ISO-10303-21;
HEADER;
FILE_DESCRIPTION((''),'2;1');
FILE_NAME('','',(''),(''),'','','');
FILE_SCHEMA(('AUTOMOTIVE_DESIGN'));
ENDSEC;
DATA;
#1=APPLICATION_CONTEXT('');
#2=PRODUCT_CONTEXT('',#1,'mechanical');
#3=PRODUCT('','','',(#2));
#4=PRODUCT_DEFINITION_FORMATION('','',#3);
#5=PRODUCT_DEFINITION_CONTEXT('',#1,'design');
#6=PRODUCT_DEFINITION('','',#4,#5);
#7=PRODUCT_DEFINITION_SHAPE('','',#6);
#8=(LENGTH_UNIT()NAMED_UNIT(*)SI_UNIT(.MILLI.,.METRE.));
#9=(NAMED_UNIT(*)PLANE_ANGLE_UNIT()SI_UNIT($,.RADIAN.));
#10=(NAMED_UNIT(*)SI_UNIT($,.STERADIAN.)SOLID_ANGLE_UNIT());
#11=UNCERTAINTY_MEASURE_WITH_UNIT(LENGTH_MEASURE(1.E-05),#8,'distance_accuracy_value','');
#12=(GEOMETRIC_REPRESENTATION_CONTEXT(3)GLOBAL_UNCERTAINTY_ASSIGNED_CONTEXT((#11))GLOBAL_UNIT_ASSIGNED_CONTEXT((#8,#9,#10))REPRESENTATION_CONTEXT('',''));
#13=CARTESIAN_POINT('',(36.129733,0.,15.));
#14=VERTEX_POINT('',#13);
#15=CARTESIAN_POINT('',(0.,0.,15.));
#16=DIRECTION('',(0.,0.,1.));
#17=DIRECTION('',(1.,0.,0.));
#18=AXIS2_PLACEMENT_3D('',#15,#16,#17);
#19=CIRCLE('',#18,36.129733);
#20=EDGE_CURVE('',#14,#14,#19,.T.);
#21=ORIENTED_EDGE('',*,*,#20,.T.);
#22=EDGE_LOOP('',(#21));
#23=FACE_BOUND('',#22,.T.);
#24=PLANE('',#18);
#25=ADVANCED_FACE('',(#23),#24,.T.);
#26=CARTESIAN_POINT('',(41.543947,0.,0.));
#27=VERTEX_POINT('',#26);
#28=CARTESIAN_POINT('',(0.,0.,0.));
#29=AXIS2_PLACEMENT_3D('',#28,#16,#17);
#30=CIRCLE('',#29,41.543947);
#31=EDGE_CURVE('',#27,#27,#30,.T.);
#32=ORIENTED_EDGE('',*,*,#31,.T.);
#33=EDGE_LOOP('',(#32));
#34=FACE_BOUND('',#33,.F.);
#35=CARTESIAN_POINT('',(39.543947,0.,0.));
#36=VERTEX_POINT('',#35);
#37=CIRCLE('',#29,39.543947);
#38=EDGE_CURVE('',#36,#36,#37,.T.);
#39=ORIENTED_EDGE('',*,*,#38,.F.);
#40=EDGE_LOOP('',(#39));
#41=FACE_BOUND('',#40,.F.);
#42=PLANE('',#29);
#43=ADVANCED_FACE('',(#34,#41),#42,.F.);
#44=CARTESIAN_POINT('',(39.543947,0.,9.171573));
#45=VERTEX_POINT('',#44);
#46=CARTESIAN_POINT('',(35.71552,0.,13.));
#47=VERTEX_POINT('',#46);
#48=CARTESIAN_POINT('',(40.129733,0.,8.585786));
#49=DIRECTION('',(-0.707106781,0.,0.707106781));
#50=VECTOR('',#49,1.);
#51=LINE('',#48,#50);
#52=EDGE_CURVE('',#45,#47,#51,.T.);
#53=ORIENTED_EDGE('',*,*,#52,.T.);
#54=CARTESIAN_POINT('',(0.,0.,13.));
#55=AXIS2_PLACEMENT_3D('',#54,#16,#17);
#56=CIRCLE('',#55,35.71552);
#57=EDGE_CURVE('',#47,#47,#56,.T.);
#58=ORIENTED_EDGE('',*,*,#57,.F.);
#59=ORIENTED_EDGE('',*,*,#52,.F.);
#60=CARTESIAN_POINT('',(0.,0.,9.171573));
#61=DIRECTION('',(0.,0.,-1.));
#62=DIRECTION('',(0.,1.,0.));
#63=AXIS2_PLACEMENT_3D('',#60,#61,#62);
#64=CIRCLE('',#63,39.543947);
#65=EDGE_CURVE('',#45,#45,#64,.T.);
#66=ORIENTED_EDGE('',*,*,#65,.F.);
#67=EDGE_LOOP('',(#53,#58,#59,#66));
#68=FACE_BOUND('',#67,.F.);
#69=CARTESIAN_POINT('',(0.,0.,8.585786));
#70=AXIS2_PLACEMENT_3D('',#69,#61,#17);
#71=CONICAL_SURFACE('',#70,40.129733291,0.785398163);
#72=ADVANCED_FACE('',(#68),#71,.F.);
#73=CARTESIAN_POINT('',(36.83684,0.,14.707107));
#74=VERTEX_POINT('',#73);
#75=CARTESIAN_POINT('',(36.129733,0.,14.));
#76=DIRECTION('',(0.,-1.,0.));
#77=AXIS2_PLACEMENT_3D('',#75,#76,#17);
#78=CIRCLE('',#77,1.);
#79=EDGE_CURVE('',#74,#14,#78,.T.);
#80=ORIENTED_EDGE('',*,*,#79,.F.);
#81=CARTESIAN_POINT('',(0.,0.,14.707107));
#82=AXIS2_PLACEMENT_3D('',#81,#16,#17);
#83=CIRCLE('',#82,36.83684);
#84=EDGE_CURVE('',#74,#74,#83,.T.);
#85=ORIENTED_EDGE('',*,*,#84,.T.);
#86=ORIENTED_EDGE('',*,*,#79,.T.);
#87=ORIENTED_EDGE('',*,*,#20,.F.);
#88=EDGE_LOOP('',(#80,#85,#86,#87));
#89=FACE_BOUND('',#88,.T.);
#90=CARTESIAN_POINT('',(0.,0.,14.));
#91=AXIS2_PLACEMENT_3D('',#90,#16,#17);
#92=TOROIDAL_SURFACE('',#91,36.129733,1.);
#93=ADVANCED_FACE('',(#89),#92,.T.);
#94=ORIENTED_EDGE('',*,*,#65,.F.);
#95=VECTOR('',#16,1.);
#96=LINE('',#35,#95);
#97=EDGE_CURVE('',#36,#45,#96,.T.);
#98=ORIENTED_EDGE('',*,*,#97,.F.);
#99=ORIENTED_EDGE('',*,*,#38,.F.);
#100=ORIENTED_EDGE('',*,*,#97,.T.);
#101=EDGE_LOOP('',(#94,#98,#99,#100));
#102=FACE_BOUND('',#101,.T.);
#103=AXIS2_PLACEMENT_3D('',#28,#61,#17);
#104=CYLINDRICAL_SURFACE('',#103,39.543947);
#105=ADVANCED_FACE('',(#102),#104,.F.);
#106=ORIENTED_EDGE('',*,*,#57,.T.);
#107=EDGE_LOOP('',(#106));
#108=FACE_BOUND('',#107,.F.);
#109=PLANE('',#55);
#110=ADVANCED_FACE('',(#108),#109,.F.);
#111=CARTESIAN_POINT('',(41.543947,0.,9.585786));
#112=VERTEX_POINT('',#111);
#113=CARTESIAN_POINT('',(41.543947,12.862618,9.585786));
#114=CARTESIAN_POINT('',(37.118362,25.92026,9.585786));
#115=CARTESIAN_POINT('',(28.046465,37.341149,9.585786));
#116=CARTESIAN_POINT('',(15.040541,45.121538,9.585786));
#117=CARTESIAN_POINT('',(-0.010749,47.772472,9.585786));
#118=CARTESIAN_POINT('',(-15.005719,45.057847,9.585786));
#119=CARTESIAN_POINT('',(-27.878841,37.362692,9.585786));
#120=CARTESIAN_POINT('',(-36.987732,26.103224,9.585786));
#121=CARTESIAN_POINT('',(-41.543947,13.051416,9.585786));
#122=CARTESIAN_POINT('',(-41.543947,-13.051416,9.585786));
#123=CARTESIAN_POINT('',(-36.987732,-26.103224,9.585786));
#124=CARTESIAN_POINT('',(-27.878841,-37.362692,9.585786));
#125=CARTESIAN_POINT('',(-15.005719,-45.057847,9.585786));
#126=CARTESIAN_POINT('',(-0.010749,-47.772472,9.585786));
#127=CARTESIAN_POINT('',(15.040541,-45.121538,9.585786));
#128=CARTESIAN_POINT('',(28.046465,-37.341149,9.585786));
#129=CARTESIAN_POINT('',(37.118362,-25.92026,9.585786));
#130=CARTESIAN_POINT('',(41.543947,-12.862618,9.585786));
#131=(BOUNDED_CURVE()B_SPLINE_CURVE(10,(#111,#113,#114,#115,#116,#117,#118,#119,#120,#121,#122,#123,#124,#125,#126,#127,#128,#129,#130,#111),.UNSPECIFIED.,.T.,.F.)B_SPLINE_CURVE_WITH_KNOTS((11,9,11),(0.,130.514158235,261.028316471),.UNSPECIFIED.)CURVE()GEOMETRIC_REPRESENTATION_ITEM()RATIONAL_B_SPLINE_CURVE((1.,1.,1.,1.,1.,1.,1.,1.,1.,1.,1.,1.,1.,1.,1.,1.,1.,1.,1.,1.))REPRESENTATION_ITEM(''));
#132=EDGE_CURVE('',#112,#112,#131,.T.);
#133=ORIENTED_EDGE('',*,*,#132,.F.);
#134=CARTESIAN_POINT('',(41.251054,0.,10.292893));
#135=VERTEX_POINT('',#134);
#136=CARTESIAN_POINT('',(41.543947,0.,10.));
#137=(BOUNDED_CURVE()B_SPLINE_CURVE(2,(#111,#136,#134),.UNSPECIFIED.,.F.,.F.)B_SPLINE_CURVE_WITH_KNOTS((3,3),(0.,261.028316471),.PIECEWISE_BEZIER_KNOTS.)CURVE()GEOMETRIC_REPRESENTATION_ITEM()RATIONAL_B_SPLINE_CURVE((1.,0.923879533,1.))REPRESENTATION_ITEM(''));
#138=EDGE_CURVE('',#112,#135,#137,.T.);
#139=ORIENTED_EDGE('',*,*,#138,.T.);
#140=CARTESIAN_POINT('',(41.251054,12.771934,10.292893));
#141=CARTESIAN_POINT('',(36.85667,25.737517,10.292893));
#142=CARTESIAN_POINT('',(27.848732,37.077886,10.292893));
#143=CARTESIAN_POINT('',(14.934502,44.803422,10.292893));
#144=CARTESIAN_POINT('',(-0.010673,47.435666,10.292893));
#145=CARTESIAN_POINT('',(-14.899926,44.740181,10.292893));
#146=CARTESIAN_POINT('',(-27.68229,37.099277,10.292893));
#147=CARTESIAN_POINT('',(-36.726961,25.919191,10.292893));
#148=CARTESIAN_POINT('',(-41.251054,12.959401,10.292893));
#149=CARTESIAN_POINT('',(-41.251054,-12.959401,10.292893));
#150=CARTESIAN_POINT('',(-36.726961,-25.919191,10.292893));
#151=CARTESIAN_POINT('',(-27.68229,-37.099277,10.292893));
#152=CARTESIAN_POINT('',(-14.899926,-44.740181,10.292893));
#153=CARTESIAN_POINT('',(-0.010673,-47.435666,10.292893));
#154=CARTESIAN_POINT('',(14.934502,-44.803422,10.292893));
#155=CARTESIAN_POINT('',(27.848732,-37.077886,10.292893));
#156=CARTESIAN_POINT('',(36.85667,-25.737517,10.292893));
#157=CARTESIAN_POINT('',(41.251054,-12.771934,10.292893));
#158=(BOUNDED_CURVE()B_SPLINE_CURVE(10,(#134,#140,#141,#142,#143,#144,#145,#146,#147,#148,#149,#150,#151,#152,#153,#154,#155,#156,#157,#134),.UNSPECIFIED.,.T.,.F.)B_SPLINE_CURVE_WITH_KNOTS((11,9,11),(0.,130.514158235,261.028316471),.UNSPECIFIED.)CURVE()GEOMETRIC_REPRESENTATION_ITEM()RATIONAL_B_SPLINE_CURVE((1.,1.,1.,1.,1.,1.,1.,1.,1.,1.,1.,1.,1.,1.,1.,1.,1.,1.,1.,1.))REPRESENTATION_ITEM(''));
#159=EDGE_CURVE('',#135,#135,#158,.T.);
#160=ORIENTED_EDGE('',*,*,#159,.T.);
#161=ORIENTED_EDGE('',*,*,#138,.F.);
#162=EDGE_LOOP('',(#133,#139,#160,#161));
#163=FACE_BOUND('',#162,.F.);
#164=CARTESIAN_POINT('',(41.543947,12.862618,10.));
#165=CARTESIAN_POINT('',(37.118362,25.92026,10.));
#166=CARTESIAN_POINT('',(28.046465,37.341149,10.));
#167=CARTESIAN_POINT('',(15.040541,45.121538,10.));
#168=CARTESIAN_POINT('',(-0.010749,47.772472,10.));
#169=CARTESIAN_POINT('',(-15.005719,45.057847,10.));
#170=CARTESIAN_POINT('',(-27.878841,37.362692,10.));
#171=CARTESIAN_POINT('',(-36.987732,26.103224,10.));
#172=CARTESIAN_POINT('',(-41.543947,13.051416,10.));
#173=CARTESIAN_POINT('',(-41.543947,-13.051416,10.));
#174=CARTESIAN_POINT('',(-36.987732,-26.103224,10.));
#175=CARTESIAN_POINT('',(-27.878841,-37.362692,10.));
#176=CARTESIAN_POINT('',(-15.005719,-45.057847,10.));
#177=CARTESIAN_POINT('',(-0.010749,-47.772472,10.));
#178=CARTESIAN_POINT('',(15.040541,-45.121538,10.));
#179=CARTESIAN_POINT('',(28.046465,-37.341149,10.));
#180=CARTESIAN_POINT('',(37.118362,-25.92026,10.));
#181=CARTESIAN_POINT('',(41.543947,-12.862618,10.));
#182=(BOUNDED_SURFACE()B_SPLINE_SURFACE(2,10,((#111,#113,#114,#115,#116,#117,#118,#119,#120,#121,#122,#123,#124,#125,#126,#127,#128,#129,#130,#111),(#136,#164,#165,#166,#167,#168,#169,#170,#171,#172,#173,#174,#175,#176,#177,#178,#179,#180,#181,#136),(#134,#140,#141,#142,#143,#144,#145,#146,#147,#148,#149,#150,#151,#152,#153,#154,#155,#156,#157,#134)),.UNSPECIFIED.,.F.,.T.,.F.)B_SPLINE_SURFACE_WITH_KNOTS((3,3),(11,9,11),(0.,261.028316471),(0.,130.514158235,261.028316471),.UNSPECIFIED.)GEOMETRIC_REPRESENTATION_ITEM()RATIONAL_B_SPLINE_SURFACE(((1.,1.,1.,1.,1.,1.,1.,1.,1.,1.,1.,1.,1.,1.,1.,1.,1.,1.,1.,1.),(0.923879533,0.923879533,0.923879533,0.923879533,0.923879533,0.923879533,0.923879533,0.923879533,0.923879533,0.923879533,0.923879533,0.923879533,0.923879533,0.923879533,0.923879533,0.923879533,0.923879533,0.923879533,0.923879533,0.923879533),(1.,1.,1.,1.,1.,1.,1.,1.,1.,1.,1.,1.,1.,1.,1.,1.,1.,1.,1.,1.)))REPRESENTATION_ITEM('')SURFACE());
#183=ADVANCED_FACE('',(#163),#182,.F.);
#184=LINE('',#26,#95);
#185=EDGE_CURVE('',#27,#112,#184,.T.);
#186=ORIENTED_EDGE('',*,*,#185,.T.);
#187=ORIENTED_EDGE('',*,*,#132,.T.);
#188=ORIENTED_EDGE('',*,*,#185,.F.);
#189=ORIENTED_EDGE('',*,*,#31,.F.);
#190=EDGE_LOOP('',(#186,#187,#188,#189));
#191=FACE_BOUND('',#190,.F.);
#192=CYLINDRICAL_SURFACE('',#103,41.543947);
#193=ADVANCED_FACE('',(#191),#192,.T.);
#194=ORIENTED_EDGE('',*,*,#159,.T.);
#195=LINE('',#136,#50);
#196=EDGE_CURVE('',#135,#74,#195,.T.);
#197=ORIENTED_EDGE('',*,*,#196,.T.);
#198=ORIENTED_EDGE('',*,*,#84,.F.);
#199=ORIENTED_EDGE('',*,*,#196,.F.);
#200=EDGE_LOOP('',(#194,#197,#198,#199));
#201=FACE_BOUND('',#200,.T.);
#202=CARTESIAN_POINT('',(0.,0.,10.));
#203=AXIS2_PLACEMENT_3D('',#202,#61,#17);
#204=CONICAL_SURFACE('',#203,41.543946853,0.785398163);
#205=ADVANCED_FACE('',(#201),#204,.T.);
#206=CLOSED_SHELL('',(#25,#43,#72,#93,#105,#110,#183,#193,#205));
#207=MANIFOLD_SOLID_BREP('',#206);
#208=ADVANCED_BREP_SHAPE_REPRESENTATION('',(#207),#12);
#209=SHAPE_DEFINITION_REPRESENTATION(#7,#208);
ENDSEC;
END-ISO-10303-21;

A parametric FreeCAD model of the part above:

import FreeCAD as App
import Part
import Sketcher
Q = App.Units.Quantity


def edges_at(feature, points):
    """Names of the edges that pass closest to the given points."""
    edges = feature.Shape.Edges
    near = lambda p: min(range(len(edges)), key=lambda i: edges[i].distToShape(Part.Vertex(*p))[0])
    return sorted({f"Edge{near(p) + 1}" for p in points})


def faces_at(feature, points):
    """Names of the faces that lie closest to the given points."""
    faces = feature.Shape.Faces
    near = lambda p: min(range(len(faces)), key=lambda i: faces[i].distToShape(Part.Vertex(*p))[0])
    return sorted({f"Face{near(p) + 1}" for p in points})

doc = App.newDocument("Part")
body = doc.addObject("PartDesign::Body", "Body")

# Sketch on XY plane
sketch1 = doc.addObject("Sketcher::SketchObject", "Sketch")
body.addObject(sketch1)
sketch1.AttachmentSupport = (doc.XY_Plane, [""])
sketch1.MapMode = "FlatFace"
sketch1.addGeometry(Part.Circle(App.Vector(0, 0, 0), App.Vector(0, 0, 1), 41.543947), False)
sketch1.addConstraint(Sketcher.Constraint("Coincident", 0, 3, -1, 1))
sketch1.addConstraint(Sketcher.Constraint("Diameter", 0, Q("83.087894 mm")))
pad1 = doc.addObject("PartDesign::Pad", "Pad")
body.addObject(pad1)
pad1.Profile = sketch1
pad1.Length = 15
doc.recompute()

chamfer = doc.addObject("PartDesign::Chamfer", "Chamfer")
body.addObject(chamfer)
chamfer.Base = (pad1, edges_at(pad1, [(-41.544, 0, 15)]))
chamfer.Size = 5
doc.recompute()

thickness = doc.addObject("PartDesign::Thickness", "Thickness")
body.addObject(thickness)
thickness.Base = (chamfer, faces_at(chamfer, [(0, 0, 0)]))
thickness.Value = 2
thickness.Reversed = True
thickness.Join = "Arc"
doc.recompute()

fillet = doc.addObject("PartDesign::Fillet", "Fillet")
body.addObject(fillet)
fillet.Base = (thickness, edges_at(thickness, [(39.044, 0, 12.5), (-41.544, 0, 10), (-36.544, 0, 15)]))
fillet.Radius = 1

doc.recompute()
